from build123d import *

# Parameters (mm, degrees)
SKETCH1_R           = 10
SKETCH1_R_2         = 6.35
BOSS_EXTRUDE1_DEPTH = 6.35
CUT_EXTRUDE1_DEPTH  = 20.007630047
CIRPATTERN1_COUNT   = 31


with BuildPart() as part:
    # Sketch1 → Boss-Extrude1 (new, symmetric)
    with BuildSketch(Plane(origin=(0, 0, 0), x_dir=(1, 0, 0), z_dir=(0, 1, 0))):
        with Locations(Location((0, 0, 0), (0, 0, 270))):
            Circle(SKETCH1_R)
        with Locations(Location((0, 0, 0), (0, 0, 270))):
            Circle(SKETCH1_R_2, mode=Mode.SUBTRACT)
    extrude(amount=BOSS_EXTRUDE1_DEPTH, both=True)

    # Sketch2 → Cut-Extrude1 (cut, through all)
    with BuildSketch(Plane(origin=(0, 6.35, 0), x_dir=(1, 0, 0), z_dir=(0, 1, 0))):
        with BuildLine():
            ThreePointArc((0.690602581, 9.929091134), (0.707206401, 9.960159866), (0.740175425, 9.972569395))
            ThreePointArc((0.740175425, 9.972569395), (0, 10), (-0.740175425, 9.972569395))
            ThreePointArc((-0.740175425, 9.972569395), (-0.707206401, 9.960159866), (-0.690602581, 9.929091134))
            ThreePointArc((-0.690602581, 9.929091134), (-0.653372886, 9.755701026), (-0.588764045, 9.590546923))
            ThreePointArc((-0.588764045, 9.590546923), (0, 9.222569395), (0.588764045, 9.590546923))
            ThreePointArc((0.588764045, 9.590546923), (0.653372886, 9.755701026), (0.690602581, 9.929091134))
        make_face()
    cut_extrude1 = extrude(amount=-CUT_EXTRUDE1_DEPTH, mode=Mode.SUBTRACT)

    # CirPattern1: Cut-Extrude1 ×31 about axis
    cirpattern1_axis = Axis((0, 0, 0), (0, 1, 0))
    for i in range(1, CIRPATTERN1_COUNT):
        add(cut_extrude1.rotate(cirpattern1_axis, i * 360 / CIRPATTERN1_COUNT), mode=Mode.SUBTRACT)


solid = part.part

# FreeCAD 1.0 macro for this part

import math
import FreeCAD as App
import Part
import Sketcher
Q = App.Units.Quantity

doc = App.newDocument("Part")
body = doc.addObject("PartDesign::Body", "Body")

# Sketch on XZ plane
sketch1 = body.newObject("Sketcher::SketchObject", "Sketch")
sketch1.AttachmentSupport = (doc.getObject("XZ_Plane"), [""])
sketch1.MapMode = "FlatFace"
sketch1.addGeometry(Part.Circle(App.Vector(0, 0, 0), App.Vector(0, 0, 1), 10), False)
sketch1.addGeometry(Part.Circle(App.Vector(0, 0, 0), App.Vector(0, 0, 1), 6), False)
sketch1.addConstraint(Sketcher.Constraint("Coincident", 0, 3, -1, 1))
sketch1.addConstraint(Sketcher.Constraint("Coincident", 1, 3, -1, 1))
sketch1.addConstraint(Sketcher.Constraint("Diameter", 0, Q("20 mm")))
sketch1.addConstraint(Sketcher.Constraint("Diameter", 1, Q("12.7 mm")))
pad1 = body.newObject("PartDesign::Pad", "Pad")
pad1.Profile = sketch1
pad1.Length = 12.7
pad1.Midplane = True

# Sketch on XZ plane
sketch2 = body.newObject("Sketcher::SketchObject", "Sketch001")
sketch2.AttachmentSupport = (doc.getObject("XZ_Plane"), [""])
sketch2.MapMode = "FlatFace"
sketch2.AttachmentOffset = App.Placement(App.Vector(0, 0, -6.35), App.Rotation())
sketch2.addGeometry(Part.ArcOfCircle(Part.Circle(App.Vector(0.74, -9.923, 0), App.Vector(0, 0, 1), 0.05), math.radians(-173), math.radians(-90)), False)
sketch2.addGeometry(Part.ArcOfCircle(Part.Circle(App.Vector(0, 0, 0), App.Vector(0, 0, 1), 10), math.radians(-94.24), math.radians(-85.76)), False)
sketch2.addGeometry(Part.ArcOfCircle(Part.Circle(App.Vector(-0.74, -9.923, 0), App.Vector(0, 0, 1), 0.05), math.radians(-90), math.radians(-7)), False)
sketch2.addGeometry(Part.ArcOfCircle(Part.Circle(App.Vector(0.4, -10.073, 0), App.Vector(0, 0, 1), 1.1), math.radians(154.01), math.radians(172.51)), False)
sketch2.addGeometry(Part.ArcOfCircle(Part.Circle(App.Vector(0, -9.878, 0), App.Vector(0, 0, 1), 0.655), math.radians(26), math.radians(154)), False)
sketch2.addGeometry(Part.ArcOfCircle(Part.Circle(App.Vector(-0.4, -10.073, 0), App.Vector(0, 0, 1), 1.1), math.radians(7.49), math.radians(25.99)), False)
sketch2.addConstraint(Sketcher.Constraint("Coincident", 0, 2, 1, 2))
sketch2.addConstraint(Sketcher.Constraint("Coincident", 1, 1, 2, 1))
sketch2.addConstraint(Sketcher.Constraint("Tangent", 2, 2, 3, 2))
sketch2.addConstraint(Sketcher.Constraint("Tangent", 3, 1, 4, 2))
sketch2.addConstraint(Sketcher.Constraint("Tangent", 4, 1, 5, 2))
sketch2.addConstraint(Sketcher.Constraint("Tangent", 5, 1, 0, 1))
sketch2.addConstraint(Sketcher.Constraint("Coincident", 1, 3, -1, 1))
sketch2.addConstraint(Sketcher.Constraint("Equal", 0, 2))
sketch2.addConstraint(Sketcher.Constraint("Equal", 3, 5))
sketch2.addConstraint(Sketcher.Constraint("Symmetric", 0, 3, 2, 3, -2))
sketch2.addConstraint(Sketcher.Constraint("PointOnObject", 4, 3, -2))
sketch2.addConstraint(Sketcher.Constraint("Vertical", 2, 3, 1, 1))
sketch2.addConstraint(Sketcher.Constraint("Radius", 1, Q("10 mm")))
sketch2.addConstraint(Sketcher.Constraint("Radius", 3, Q("1.1 mm")))
sketch2.addConstraint(Sketcher.Constraint("Radius", 0, Q("0.05 mm")))
sketch2.addConstraint(Sketcher.Constraint("Radius", 4, Q("0.655 mm")))
sketch2.addConstraint(Sketcher.Constraint("DistanceX", -1, 1, 3, 3, Q("0.4 mm")))
sketch2.addConstraint(Sketcher.Constraint("DistanceY", 3, 3, 0, 2, Q("0.1 mm")))
pocket1 = body.newObject("PartDesign::Pocket", "Pocket")
pocket1.Profile = sketch2
pocket1.Type = "ThroughAll"
pocket1.Reversed = True
doc.recompute()

polarpattern = body.newObject("PartDesign::PolarPattern", "PolarPattern")
polarpattern.Originals = [pocket1]
polarpattern.Axis = (doc.getObject("Y_Axis"), [""])
polarpattern.Angle = 360
polarpattern.Occurrences = 31
body.Tip = polarpattern

doc.recompute()
